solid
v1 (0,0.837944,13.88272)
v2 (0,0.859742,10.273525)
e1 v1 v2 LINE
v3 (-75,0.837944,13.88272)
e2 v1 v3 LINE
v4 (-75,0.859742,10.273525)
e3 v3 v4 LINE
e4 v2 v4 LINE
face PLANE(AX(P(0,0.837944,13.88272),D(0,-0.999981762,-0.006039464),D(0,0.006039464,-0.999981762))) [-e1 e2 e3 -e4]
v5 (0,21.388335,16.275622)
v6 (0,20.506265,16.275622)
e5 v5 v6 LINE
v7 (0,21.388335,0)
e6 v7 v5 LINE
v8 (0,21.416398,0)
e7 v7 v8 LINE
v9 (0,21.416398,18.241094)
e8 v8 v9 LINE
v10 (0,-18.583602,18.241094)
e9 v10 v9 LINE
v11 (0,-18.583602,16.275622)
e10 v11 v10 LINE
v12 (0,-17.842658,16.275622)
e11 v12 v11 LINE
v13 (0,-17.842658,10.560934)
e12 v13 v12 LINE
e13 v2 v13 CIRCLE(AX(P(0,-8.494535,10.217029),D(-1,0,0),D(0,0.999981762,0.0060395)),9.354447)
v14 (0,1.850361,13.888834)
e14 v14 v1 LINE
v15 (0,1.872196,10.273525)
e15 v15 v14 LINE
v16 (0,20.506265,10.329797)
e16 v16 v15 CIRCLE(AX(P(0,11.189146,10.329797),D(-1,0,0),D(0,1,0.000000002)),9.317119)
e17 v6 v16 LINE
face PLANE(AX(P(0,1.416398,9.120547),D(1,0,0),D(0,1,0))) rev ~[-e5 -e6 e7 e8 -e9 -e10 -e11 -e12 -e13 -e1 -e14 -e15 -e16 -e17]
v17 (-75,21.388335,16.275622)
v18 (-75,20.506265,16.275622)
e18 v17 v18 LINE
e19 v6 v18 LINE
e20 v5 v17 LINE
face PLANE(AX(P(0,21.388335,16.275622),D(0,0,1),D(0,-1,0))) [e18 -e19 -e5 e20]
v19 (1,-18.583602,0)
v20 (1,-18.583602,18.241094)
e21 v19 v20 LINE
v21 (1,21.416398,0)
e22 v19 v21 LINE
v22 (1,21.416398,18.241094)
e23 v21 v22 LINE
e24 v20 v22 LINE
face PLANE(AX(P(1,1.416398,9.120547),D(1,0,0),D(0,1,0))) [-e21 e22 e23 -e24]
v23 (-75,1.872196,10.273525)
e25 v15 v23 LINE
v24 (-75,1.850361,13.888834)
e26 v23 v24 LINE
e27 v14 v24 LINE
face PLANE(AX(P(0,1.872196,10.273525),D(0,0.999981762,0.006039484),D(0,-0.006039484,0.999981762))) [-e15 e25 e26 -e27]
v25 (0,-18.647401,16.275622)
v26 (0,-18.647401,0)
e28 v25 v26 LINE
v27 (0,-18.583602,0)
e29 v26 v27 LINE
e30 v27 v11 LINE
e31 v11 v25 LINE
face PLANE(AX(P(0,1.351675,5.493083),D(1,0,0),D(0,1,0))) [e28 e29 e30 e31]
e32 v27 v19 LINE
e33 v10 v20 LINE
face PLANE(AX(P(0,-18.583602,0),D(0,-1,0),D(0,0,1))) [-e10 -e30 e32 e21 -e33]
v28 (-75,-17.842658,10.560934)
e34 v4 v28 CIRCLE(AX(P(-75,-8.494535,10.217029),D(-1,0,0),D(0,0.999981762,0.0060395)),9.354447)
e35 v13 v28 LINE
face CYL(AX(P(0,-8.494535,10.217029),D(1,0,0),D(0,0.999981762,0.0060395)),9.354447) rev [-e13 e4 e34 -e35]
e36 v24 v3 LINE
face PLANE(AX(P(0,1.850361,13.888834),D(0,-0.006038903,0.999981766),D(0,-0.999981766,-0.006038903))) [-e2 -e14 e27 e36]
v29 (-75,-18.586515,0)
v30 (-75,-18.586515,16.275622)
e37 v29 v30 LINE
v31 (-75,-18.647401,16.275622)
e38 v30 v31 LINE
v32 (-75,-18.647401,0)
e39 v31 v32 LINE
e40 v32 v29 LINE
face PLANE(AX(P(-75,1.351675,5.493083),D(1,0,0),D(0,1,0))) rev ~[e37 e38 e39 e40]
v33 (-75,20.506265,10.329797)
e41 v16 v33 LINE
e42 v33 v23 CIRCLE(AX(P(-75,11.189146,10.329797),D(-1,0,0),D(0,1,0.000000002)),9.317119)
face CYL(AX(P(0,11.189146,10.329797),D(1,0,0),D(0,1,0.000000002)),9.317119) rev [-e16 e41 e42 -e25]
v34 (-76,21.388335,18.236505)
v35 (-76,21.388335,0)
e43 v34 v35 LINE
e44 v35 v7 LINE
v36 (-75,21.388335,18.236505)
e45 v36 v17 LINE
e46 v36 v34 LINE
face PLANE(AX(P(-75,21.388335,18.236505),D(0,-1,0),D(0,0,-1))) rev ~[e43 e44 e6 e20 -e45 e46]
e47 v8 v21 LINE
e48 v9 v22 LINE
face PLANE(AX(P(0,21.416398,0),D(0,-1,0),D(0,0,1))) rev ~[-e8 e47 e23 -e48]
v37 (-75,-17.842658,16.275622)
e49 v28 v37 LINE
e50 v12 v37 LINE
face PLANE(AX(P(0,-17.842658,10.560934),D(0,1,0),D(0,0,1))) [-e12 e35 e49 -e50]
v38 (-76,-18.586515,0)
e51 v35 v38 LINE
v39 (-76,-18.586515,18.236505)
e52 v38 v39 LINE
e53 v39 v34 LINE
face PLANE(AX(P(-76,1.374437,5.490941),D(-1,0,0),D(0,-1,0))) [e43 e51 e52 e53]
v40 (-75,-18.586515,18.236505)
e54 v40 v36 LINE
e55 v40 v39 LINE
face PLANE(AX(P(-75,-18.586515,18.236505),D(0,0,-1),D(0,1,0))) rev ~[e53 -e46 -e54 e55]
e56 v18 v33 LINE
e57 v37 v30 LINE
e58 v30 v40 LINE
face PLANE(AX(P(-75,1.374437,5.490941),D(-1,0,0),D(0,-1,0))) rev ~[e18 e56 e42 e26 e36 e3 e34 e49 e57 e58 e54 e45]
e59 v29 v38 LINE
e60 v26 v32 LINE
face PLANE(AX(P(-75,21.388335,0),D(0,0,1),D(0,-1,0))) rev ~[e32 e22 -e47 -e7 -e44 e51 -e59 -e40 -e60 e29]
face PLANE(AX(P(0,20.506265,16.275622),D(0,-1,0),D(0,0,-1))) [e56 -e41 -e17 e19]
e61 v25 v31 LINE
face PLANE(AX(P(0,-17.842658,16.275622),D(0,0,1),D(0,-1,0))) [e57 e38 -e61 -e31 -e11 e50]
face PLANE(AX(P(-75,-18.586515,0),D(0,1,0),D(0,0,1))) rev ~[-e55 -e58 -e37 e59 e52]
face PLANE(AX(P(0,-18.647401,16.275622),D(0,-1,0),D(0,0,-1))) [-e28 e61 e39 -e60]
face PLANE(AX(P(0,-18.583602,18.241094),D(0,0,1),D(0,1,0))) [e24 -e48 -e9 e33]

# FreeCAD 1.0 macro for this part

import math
import FreeCAD as App
import Part
import Sketcher
from FreeCAD import Vector
Q = App.Units.Quantity


def add_polygon(sketch, points):
    """Adds a closed chain of lines whose ends are joined by coincident constraints."""
    first, n = sketch.GeometryCount, len(points)
    for a, b in zip(points, points[1:] + points[:1]):
        sketch.addGeometry(Part.LineSegment(App.Vector(*a, 0), App.Vector(*b, 0)), False)
    for i in range(n):
        sketch.addConstraint(Sketcher.Constraint("Coincident", first + i, 2, first + (i + 1) % n, 1))

doc = App.newDocument("Part")
body = doc.addObject("PartDesign::Body", "Body")

# Sketch on YZ plane
sketch1 = doc.addObject("Sketcher::SketchObject", "Sketch")
body.addObject(sketch1)
sketch1.AttachmentSupport = (doc.YZ_Plane, [""])
sketch1.MapMode = "FlatFace"
add_polygon(sketch1, [(-19, 18), (-19, 0), (21, 0), (21, 18)])  # lines 0-3
sketch1.addConstraint(Sketcher.Constraint("Vertical", 0))
sketch1.addConstraint(Sketcher.Constraint("Horizontal", 1))
sketch1.addConstraint(Sketcher.Constraint("Vertical", 2))
sketch1.addConstraint(Sketcher.Constraint("Horizontal", 3))
sketch1.addConstraint(Sketcher.Constraint("PointOnObject", 0, 2, -1))
sketch1.addConstraint(Sketcher.Constraint("DistanceX", 1, 1, 1, 2, Q("40 mm")))
sketch1.addConstraint(Sketcher.Constraint("DistanceX", 0, 2, -1, 1, Q("18.583602 mm")))
sketch1.addConstraint(Sketcher.Constraint("DistanceY", 0, 2, 0, 1, Q("18.241094 mm")))
pad1 = doc.addObject("PartDesign::Pad", "Pad")
body.addObject(pad1)
pad1.Profile = sketch1
pad1.Length = 1

# Sketch on YZ plane
sketch2 = doc.addObject("Sketcher::SketchObject", "Sketch001")
body.addObject(sketch2)
sketch2.AttachmentSupport = (doc.YZ_Plane, [""])
sketch2.MapMode = "FlatFace"
sketch2.addGeometry(Part.LineSegment(Vector(-18.6, 0, 0), Vector(21.4, 0, 0)), False)
sketch2.addGeometry(Part.LineSegment(Vector(21.4, 0, 0), Vector(21.4, 16.3, 0)), False)
sketch2.addGeometry(Part.LineSegment(Vector(21.4, 16.3, 0), Vector(20.5, 16.3, 0)), False)
sketch2.addGeometry(Part.LineSegment(Vector(20.5, 16.3, 0), Vector(20.5, 10.3, 0)), False)
sketch2.addGeometry(Part.ArcOfCircle(Part.Circle(Vector(11.2, 10.3, 0), Vector(0, 0, 1), 9.3), math.radians(-180), math.radians(0)), False)
sketch2.addGeometry(Part.LineSegment(Vector(1.9, 10.3, 0), Vector(1.9, 13.9, 0)), False)
sketch2.addGeometry(Part.LineSegment(Vector(1.9, 13.9, 0), Vector(0.8, 13.9, 0)), False)
sketch2.addGeometry(Part.LineSegment(Vector(0.8, 13.9, 0), Vector(0.9, 10.3, 0)), False)
sketch2.addGeometry(Part.ArcOfCircle(Part.Circle(Vector(-8.5, 10.2, 0), Vector(0, 0, 1), 9.4), math.radians(178), math.radians(360)), False)
sketch2.addGeometry(Part.LineSegment(Vector(-17.8, 10.6, 0), Vector(-17.8, 16.3, 0)), False)
sketch2.addGeometry(Part.LineSegment(Vector(-17.8, 16.3, 0), Vector(-18.6, 16.3, 0)), False)
sketch2.addGeometry(Part.LineSegment(Vector(-18.6, 16.3, 0), Vector(-18.6, 0, 0)), False)
sketch2.addConstraint(Sketcher.Constraint("Coincident", 0, 2, 1, 1))
sketch2.addConstraint(Sketcher.Constraint("Coincident", 1, 2, 2, 1))
sketch2.addConstraint(Sketcher.Constraint("Coincident", 2, 2, 3, 1))
sketch2.addConstraint(Sketcher.Constraint("Tangent", 3, 2, 4, 2))
sketch2.addConstraint(Sketcher.Constraint("Tangent", 4, 1, 5, 1))
sketch2.addConstraint(Sketcher.Constraint("Coincident", 5, 2, 6, 1))
sketch2.addConstraint(Sketcher.Constraint("Coincident", 6, 2, 7, 1))
sketch2.addConstraint(Sketcher.Constraint("Tangent", 7, 2, 8, 2))
sketch2.addConstraint(Sketcher.Constraint("Coincident", 8, 1, 9, 1))
sketch2.addConstraint(Sketcher.Constraint("Coincident", 9, 2, 10, 1))
sketch2.addConstraint(Sketcher.Constraint("Coincident", 10, 2, 11, 1))
sketch2.addConstraint(Sketcher.Constraint("Coincident", 11, 2, 0, 1))
sketch2.addConstraint(Sketcher.Constraint("Horizontal", 0))
sketch2.addConstraint(Sketcher.Constraint("Vertical", 1))
sketch2.addConstraint(Sketcher.Constraint("Horizontal", 2))
sketch2.addConstraint(Sketcher.Constraint("Vertical", 3))
sketch2.addConstraint(Sketcher.Constraint("Vertical", 9))
sketch2.addConstraint(Sketcher.Constraint("Horizontal", 10))
sketch2.addConstraint(Sketcher.Constraint("Vertical", 11))
sketch2.addConstraint(Sketcher.Constraint("PointOnObject", 0, 2, -1))
sketch2.addConstraint(Sketcher.Constraint("Perpendicular", 5, 6))
sketch2.addConstraint(Sketcher.Constraint("Perpendicular", 6, 7))
sketch2.addConstraint(Sketcher.Constraint("Horizontal", 4, 1, 7, 2))
sketch2.addConstraint(Sketcher.Constraint("Horizontal", 2, 2, 9, 2))
sketch2.addConstraint(Sketcher.Constraint("Radius", 4, Q("9.317119 mm")))
sketch2.addConstraint(Sketcher.Constraint("Radius", 8, Q("9.354447 mm")))
sketch2.addConstraint(Sketcher.Constraint("DistanceX", 2, 2, 2, 1, Q("0.88207 mm")))
sketch2.addConstraint(Sketcher.Constraint("DistanceY", 1, 1, 1, 2, Q("16.275622 mm")))
sketch2.addConstraint(Sketcher.Constraint("DistanceX", 10, 2, -1, 1, Q("18.647401 mm")))
sketch2.addConstraint(Sketcher.Constraint("DistanceX", 8, 3, 2, 2, Q("29.0008 mm")))
sketch2.addConstraint(Sketcher.Constraint("DistanceX", 6, 2, 4, 3, Q("10.351202 mm")))
sketch2.addConstraint(Sketcher.Constraint("DistanceY", 6, 2, 2, 2, Q("2.392902 mm")))
sketch2.addConstraint(Sketcher.Constraint("DistanceX", 8, 1, 7, 2, Q("18.7024 mm")))
sketch2.addConstraint(Sketcher.Constraint("DistanceY", 8, 1, 5, 2, Q("3.3279 mm")))
sketch2.addConstraint(Sketcher.Constraint("DistanceX", 0, 1, 0, 2, Q("40.035736 mm")))
pad2 = doc.addObject("PartDesign::Pad", "Pad001")
body.addObject(pad2)
pad2.Profile = sketch2
pad2.Length = 75
pad2.Reversed = True

# Sketch on YZ plane
sketch3 = doc.addObject("Sketcher::SketchObject", "Sketch002")
body.addObject(sketch3)
sketch3.AttachmentSupport = (doc.YZ_Plane, [""])
sketch3.MapMode = "FlatFace"
sketch3.AttachmentOffset = App.Placement(Vector(0, 0, -75), App.Rotation())
add_polygon(sketch3, [(-19, 0), (-19, 18), (21, 18), (21, 0)])  # lines 0-3
sketch3.addConstraint(Sketcher.Constraint("Vertical", 0))
sketch3.addConstraint(Sketcher.Constraint("Horizontal", 1))
sketch3.addConstraint(Sketcher.Constraint("Vertical", 2))
sketch3.addConstraint(Sketcher.Constraint("Horizontal", 3))
sketch3.addConstraint(Sketcher.Constraint("PointOnObject", 2, 2, -1))
sketch3.addConstraint(Sketcher.Constraint("DistanceX", 1, 1, 1, 2, Q("39.97485 mm")))
sketch3.addConstraint(Sketcher.Constraint("DistanceY", 0, 1, 0, 2, Q("18.236505 mm")))
sketch3.addConstraint(Sketcher.Constraint("DistanceX", 0, 2, -1, 1, Q("18.586515 mm")))
pad3 = doc.addObject("PartDesign::Pad", "Pad002")
body.addObject(pad3)
pad3.Profile = sketch3
pad3.Length = 1
pad3.Reversed = True

doc.recompute()
